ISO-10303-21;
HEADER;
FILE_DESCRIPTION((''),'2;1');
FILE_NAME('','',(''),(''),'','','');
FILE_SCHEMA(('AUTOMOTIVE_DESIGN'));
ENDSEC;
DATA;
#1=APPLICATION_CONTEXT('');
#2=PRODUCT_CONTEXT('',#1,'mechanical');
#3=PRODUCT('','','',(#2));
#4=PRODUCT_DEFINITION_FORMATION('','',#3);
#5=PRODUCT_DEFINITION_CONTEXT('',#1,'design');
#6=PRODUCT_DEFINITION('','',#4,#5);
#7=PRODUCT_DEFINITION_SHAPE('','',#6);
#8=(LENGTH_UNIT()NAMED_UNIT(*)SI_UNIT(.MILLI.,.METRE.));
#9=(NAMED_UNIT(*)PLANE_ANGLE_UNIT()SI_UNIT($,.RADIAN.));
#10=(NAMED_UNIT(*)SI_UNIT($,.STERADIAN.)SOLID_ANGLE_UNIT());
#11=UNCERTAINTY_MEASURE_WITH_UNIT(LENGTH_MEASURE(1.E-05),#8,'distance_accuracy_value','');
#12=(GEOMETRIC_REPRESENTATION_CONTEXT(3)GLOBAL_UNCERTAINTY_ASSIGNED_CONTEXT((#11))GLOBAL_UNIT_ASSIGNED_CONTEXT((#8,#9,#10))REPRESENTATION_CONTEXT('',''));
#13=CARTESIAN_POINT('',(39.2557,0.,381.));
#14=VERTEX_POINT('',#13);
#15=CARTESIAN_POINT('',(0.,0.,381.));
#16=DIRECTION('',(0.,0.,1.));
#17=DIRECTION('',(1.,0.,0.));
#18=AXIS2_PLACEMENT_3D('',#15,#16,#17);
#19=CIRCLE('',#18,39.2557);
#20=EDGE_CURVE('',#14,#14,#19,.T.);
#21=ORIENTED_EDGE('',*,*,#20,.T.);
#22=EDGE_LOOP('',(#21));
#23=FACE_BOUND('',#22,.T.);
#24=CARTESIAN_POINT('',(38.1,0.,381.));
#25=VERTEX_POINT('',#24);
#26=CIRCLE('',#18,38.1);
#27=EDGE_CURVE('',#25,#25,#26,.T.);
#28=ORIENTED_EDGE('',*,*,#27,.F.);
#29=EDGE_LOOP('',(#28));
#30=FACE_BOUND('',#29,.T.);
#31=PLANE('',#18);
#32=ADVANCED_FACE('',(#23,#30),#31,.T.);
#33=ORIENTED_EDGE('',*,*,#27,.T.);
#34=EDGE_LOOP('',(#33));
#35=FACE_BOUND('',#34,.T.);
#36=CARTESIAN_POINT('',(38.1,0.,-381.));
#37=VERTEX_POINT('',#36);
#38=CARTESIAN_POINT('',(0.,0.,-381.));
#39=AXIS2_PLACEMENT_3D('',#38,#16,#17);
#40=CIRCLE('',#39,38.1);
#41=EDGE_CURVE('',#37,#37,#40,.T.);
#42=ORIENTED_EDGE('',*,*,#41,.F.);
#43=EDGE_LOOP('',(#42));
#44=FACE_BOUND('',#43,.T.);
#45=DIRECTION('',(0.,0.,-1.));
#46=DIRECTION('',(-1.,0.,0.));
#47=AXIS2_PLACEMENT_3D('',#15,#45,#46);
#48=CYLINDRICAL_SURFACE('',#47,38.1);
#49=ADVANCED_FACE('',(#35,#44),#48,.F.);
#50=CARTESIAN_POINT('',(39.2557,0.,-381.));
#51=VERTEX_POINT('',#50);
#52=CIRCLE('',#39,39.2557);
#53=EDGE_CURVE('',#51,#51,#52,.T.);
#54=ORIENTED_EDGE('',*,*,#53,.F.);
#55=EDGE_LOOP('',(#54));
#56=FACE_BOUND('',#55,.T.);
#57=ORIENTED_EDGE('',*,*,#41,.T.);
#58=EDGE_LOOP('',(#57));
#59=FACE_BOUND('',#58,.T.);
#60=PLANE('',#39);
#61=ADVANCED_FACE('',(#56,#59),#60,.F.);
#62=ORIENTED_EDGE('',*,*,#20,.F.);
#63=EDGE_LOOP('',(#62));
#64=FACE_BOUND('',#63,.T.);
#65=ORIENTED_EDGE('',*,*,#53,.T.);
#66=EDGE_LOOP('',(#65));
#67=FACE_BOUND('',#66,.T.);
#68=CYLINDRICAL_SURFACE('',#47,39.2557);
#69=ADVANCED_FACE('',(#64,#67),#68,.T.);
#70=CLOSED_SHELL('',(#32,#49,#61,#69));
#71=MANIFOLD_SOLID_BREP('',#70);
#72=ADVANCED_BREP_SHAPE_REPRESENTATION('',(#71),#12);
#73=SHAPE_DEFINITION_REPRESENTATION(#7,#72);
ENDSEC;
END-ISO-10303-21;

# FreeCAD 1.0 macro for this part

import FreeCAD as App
import Part
import Sketcher
Q = App.Units.Quantity

doc = App.newDocument("Part")
body = doc.addObject("PartDesign::Body", "Body")

# Sketch on XY plane
sketch1 = body.newObject("Sketcher::SketchObject", "Sketch")
sketch1.AttachmentSupport = (doc.getObject("XY_Plane"), [""])
sketch1.MapMode = "FlatFace"
sketch1.addGeometry([
    Part.Circle(App.Vector(0, 0, 0), App.Vector(0, 0, 1), 39),
    Part.Circle(App.Vector(0, 0, 0), App.Vector(0, 0, 1), 38),
], False)
sketch1.addConstraint([
    Sketcher.Constraint("Coincident", 0, 3, -1, 1),
    Sketcher.Constraint("Coincident", 1, 3, -1, 1),
    Sketcher.Constraint("Diameter", 1, Q("3 in")),
    Sketcher.Constraint("Diameter", 0, Q("3.091 in")),
])
pad1 = body.newObject("PartDesign::Pad", "Pad")
pad1.Profile = sketch1
pad1.Length = Q("30 in")
pad1.Midplane = True

doc.recompute()
